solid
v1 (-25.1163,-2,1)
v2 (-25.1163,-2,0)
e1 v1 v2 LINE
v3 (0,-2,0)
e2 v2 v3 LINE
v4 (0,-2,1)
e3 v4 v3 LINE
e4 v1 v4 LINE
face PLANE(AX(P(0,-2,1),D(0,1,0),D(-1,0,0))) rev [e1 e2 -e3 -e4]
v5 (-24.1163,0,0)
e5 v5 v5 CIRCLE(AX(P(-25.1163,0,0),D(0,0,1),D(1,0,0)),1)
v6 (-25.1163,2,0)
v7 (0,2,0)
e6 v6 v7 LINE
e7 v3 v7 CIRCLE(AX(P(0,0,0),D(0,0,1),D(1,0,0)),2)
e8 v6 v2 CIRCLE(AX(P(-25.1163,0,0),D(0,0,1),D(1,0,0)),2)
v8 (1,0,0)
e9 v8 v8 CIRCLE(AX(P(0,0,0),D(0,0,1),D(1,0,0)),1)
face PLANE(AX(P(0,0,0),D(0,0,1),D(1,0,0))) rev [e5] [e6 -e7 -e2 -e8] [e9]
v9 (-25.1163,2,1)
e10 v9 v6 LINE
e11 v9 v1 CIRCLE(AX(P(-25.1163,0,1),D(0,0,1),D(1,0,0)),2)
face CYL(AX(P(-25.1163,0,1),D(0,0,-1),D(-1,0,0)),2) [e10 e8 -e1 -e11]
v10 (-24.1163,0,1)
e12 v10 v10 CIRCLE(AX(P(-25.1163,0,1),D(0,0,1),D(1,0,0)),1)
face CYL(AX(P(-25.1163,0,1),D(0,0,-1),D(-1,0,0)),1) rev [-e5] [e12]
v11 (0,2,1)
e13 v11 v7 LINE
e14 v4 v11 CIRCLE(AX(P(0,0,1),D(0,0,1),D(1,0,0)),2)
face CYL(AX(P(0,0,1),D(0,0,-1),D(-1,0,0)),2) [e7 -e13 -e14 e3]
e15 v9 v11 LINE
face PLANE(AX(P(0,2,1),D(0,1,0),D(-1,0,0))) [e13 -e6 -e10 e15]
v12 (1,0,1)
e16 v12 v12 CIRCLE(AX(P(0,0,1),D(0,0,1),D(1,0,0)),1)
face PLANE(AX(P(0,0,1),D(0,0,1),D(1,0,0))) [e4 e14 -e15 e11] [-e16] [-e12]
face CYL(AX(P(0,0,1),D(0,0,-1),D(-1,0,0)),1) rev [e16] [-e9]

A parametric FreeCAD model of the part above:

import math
import FreeCAD as App
import Part
import Sketcher
from FreeCAD import Vector
Q = App.Units.Quantity

doc = App.newDocument("Part")
body = doc.addObject("PartDesign::Body", "Body")

sketch1 = doc.addObject("Sketcher::SketchObject", "Sketch")
body.addObject(sketch1)
sketch1.AttachmentSupport = (doc.XY_Plane, [""])
sketch1.MapMode = "FlatFace"
sketch1.addGeometry([
    Part.LineSegment(Vector(0, 2, 0), Vector(-25.1, 2, 0)),
    Part.ArcOfCircle(Part.Circle(Vector(-25.1, 0, 0), Vector(0, 0, 1), 2), math.radians(90), math.radians(270)),
    Part.LineSegment(Vector(-25.1, -2, 0), Vector(0, -2, 0)),
    Part.ArcOfCircle(Part.Circle(Vector(0, 0, 0), Vector(0, 0, 1), 2), math.radians(-90), math.radians(90)),
    Part.Circle(Vector(-25.1, 0, 0), Vector(0, 0, 1), 1),
    Part.Circle(Vector(0, 0, 0), Vector(0, 0, 1), 1),
], False)
sketch1.addConstraint([
    Sketcher.Constraint("Tangent", 0, 2, 1, 1),
    Sketcher.Constraint("Tangent", 1, 2, 2, 1),
    Sketcher.Constraint("Tangent", 2, 2, 3, 1),
    Sketcher.Constraint("Tangent", 3, 2, 0, 1),
    Sketcher.Constraint("Horizontal", 0),
    Sketcher.Constraint("Horizontal", 2),
    Sketcher.Constraint("Coincident", 3, 3, -1, 1),
    Sketcher.Constraint("Coincident", 5, 3, -1, 1),
    Sketcher.Constraint("Coincident", 4, 3, 1, 3),
    Sketcher.Constraint("Equal", 4, 5),
    Sketcher.Constraint("Diameter", 4, Q("2 mm")),
    Sketcher.Constraint("Radius", 1, Q("2 mm")),
    Sketcher.Constraint("DistanceX", 0, 2, 0, 1, Q("25.1163 mm")),
])
pad1 = doc.addObject("PartDesign::Pad", "Pad")
body.addObject(pad1)
pad1.Profile = sketch1
pad1.Length = 1

doc.recompute()
